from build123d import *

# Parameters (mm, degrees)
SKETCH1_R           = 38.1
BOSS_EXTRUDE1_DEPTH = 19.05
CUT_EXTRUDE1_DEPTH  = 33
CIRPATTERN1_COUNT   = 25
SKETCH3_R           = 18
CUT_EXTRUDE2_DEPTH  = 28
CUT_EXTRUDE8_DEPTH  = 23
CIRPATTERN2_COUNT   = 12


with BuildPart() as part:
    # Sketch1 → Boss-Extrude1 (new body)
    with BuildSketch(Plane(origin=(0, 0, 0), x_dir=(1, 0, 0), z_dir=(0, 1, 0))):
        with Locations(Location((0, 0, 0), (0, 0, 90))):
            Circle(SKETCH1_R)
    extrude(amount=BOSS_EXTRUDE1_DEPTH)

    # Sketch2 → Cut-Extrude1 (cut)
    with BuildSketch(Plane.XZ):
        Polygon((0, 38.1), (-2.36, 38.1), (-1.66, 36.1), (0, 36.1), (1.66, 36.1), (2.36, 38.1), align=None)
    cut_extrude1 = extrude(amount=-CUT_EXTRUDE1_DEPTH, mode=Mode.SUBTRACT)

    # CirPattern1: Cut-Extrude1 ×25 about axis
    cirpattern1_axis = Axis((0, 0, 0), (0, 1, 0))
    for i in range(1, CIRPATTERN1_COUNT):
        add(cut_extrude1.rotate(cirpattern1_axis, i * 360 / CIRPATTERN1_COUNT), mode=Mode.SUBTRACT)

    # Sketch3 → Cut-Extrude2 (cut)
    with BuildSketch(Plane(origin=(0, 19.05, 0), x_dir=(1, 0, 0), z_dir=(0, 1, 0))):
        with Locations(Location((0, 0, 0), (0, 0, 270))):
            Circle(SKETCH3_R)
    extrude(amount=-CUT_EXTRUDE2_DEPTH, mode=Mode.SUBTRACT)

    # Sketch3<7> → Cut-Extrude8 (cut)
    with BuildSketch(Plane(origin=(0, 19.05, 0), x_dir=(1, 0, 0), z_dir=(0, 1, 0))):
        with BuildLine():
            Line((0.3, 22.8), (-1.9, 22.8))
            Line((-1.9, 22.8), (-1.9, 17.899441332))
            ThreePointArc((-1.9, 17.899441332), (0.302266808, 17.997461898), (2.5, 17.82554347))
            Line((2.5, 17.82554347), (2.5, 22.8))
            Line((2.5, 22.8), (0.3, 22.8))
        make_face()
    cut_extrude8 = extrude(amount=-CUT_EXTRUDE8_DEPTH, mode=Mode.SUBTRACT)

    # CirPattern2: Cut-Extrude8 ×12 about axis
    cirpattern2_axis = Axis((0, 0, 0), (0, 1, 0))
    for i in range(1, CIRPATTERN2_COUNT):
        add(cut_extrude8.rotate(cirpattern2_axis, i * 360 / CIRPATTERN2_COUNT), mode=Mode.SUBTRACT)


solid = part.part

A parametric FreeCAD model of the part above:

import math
import FreeCAD as App
import Part
import Sketcher

doc = App.newDocument("Part")
params = doc.addObject("Spreadsheet::Sheet", "Params")
for row, (alias, value) in enumerate([
    ("sketch1_diameter", "76.2 mm"),
    ("pad1_length", "19.05 mm"),
    ("sketch2_width", "3.32 mm"),
    ("sketch2_width2", "4.72 mm"),
    ("pocket1_length", "33 mm"),
    ("sketch3_diameter", "36 mm"),
    ("pocket2_length", "28 mm"),
    ("sketch4_radius", "18 mm"),
    ("sketch4_width", "4.4 mm"),
    ("pocket3_length", "23 mm"),
], start=1):
    params.set(f"A{row}", alias)
    params.set(f"B{row}", "=" + value)
    params.setAlias(f"B{row}", alias)

body = doc.addObject("PartDesign::Body", "Body")

sketch1 = body.newObject("Sketcher::SketchObject", "Sketch")
sketch1.AttachmentSupport = (doc.getObject("XZ_Plane"), [""])
sketch1.MapMode = "FlatFace"
sketch1.addGeometry(Part.Circle(App.Vector(0, 0, 0), App.Vector(0, 0, 1), 38), False)
sketch1.addConstraint([
    Sketcher.Constraint("Coincident", 0, 3, -1, 1),
    Sketcher.Constraint("Diameter", 0, 76.2),
])
sketch1.setExpression("Constraints[1]", "Params.sketch1_diameter")
pad1 = body.newObject("PartDesign::Pad", "Pad")
pad1.Profile = sketch1
pad1.setExpression("Length", "Params.pad1_length")
pad1.Reversed = True

sketch2 = body.newObject("Sketcher::SketchObject", "Sketch001")
sketch2.AttachmentSupport = (doc.getObject("XZ_Plane"), [""])
sketch2.MapMode = "FlatFace"
sketch2.addGeometry([
    Part.LineSegment(App.Vector(-2.4, 38.1, 0), App.Vector(-1.7, 36.1, 0)),
    Part.LineSegment(App.Vector(-1.7, 36.1, 0), App.Vector(1.7, 36.1, 0)),
    Part.LineSegment(App.Vector(1.7, 36.1, 0), App.Vector(2.4, 38.1, 0)),
    Part.LineSegment(App.Vector(2.4, 38.1, 0), App.Vector(-2.4, 38.1, 0)),
], False)
sketch2.addConstraint([
    Sketcher.Constraint("Coincident", 0, 2, 1, 1),
    Sketcher.Constraint("Coincident", 1, 2, 2, 1),
    Sketcher.Constraint("Coincident", 2, 2, 3, 1),
    Sketcher.Constraint("Coincident", 3, 2, 0, 1),
    Sketcher.Constraint("Horizontal", 1),
    Sketcher.Constraint("Horizontal", 3),
    Sketcher.Constraint("Equal", 0, 2),
    Sketcher.Constraint("DistanceY", 1, 2, 2, 2, 2.0),
    Sketcher.Constraint("DistanceX", 1, 1, 1, 2, 3.32),
    Sketcher.Constraint("DistanceX", 3, 2, 3, 1, 4.72),
    Sketcher.Constraint("DistanceY", -1, 1, 0, 2, 36.1),
    Sketcher.Constraint("DistanceX", 0, 2, -1, 1, 1.66),
])
sketch2.setExpression("Constraints[8]", "Params.sketch2_width")
sketch2.setExpression("Constraints[9]", "Params.sketch2_width2")
pocket1 = body.newObject("PartDesign::Pocket", "Pocket")
pocket1.Profile = sketch2
pocket1.setExpression("Length", "Params.pocket1_length")
doc.recompute()

polarpattern = body.newObject("PartDesign::PolarPattern", "PolarPattern")
polarpattern.Originals = [pocket1]
polarpattern.Axis = (doc.getObject("Y_Axis"), [""])
polarpattern.Angle = 360
polarpattern.Occurrences = 25
body.Tip = polarpattern

sketch3 = body.newObject("Sketcher::SketchObject", "Sketch002")
sketch3.AttachmentSupport = (doc.getObject("XZ_Plane"), [""])
sketch3.MapMode = "FlatFace"
sketch3.AttachmentOffset = App.Placement(App.Vector(0, 0, -19.05), App.Rotation())
sketch3.addGeometry(Part.Circle(App.Vector(0, 0, 0), App.Vector(0, 0, 1), 18), False)
sketch3.addConstraint([
    Sketcher.Constraint("Coincident", 0, 3, -1, 1),
    Sketcher.Constraint("Diameter", 0, 36.0),
])
sketch3.setExpression("Constraints[1]", "Params.sketch3_diameter")
pocket2 = body.newObject("PartDesign::Pocket", "Pocket001")
pocket2.Profile = sketch3
pocket2.setExpression("Length", "Params.pocket2_length")
pocket2.Reversed = True

sketch4 = body.newObject("Sketcher::SketchObject", "Sketch003")
sketch4.AttachmentSupport = (doc.getObject("XZ_Plane"), [""])
sketch4.MapMode = "FlatFace"
sketch4.AttachmentOffset = App.Placement(App.Vector(0, 0, -19.05), App.Rotation())
sketch4.addGeometry([
    Part.LineSegment(App.Vector(-1.9, -22.8, 0), App.Vector(-1.9, -17.9, 0)),
    Part.ArcOfCircle(Part.Circle(App.Vector(0, 0, 0), App.Vector(0, 0, 1), 18), math.radians(-96.06), math.radians(-82.02)),
    Part.LineSegment(App.Vector(2.5, -17.8, 0), App.Vector(2.5, -22.8, 0)),
    Part.LineSegment(App.Vector(2.5, -22.8, 0), App.Vector(-1.9, -22.8, 0)),
], False)
sketch4.addConstraint([
    Sketcher.Constraint("Coincident", 0, 2, 1, 1),
    Sketcher.Constraint("Coincident", 1, 2, 2, 1),
    Sketcher.Constraint("Coincident", 2, 2, 3, 1),
    Sketcher.Constraint("Coincident", 3, 2, 0, 1),
    Sketcher.Constraint("Vertical", 0),
    Sketcher.Constraint("Vertical", 2),
    Sketcher.Constraint("Horizontal", 3),
    Sketcher.Constraint("Coincident", 1, 3, -1, 1),
    Sketcher.Constraint("Radius", 1, 18.0),
    Sketcher.Constraint("DistanceX", 3, 2, 3, 1, 4.4),
    Sketcher.Constraint("DistanceX", 0, 2, -1, 1, 1.9),
    Sketcher.Constraint("DistanceY", 2, 2, -1, 1, 22.8),
])
sketch4.setExpression("Constraints[8]", "Params.sketch4_radius")
sketch4.setExpression("Constraints[9]", "Params.sketch4_width")
pocket3 = body.newObject("PartDesign::Pocket", "Pocket002")
pocket3.Profile = sketch4
pocket3.setExpression("Length", "Params.pocket3_length")
pocket3.Reversed = True
doc.recompute()

polarpattern2 = body.newObject("PartDesign::PolarPattern", "PolarPattern001")
polarpattern2.Originals = [pocket3]
polarpattern2.Axis = (doc.getObject("Y_Axis"), [""])
polarpattern2.Angle = 360
polarpattern2.Occurrences = 12
body.Tip = polarpattern2

doc.recompute()
